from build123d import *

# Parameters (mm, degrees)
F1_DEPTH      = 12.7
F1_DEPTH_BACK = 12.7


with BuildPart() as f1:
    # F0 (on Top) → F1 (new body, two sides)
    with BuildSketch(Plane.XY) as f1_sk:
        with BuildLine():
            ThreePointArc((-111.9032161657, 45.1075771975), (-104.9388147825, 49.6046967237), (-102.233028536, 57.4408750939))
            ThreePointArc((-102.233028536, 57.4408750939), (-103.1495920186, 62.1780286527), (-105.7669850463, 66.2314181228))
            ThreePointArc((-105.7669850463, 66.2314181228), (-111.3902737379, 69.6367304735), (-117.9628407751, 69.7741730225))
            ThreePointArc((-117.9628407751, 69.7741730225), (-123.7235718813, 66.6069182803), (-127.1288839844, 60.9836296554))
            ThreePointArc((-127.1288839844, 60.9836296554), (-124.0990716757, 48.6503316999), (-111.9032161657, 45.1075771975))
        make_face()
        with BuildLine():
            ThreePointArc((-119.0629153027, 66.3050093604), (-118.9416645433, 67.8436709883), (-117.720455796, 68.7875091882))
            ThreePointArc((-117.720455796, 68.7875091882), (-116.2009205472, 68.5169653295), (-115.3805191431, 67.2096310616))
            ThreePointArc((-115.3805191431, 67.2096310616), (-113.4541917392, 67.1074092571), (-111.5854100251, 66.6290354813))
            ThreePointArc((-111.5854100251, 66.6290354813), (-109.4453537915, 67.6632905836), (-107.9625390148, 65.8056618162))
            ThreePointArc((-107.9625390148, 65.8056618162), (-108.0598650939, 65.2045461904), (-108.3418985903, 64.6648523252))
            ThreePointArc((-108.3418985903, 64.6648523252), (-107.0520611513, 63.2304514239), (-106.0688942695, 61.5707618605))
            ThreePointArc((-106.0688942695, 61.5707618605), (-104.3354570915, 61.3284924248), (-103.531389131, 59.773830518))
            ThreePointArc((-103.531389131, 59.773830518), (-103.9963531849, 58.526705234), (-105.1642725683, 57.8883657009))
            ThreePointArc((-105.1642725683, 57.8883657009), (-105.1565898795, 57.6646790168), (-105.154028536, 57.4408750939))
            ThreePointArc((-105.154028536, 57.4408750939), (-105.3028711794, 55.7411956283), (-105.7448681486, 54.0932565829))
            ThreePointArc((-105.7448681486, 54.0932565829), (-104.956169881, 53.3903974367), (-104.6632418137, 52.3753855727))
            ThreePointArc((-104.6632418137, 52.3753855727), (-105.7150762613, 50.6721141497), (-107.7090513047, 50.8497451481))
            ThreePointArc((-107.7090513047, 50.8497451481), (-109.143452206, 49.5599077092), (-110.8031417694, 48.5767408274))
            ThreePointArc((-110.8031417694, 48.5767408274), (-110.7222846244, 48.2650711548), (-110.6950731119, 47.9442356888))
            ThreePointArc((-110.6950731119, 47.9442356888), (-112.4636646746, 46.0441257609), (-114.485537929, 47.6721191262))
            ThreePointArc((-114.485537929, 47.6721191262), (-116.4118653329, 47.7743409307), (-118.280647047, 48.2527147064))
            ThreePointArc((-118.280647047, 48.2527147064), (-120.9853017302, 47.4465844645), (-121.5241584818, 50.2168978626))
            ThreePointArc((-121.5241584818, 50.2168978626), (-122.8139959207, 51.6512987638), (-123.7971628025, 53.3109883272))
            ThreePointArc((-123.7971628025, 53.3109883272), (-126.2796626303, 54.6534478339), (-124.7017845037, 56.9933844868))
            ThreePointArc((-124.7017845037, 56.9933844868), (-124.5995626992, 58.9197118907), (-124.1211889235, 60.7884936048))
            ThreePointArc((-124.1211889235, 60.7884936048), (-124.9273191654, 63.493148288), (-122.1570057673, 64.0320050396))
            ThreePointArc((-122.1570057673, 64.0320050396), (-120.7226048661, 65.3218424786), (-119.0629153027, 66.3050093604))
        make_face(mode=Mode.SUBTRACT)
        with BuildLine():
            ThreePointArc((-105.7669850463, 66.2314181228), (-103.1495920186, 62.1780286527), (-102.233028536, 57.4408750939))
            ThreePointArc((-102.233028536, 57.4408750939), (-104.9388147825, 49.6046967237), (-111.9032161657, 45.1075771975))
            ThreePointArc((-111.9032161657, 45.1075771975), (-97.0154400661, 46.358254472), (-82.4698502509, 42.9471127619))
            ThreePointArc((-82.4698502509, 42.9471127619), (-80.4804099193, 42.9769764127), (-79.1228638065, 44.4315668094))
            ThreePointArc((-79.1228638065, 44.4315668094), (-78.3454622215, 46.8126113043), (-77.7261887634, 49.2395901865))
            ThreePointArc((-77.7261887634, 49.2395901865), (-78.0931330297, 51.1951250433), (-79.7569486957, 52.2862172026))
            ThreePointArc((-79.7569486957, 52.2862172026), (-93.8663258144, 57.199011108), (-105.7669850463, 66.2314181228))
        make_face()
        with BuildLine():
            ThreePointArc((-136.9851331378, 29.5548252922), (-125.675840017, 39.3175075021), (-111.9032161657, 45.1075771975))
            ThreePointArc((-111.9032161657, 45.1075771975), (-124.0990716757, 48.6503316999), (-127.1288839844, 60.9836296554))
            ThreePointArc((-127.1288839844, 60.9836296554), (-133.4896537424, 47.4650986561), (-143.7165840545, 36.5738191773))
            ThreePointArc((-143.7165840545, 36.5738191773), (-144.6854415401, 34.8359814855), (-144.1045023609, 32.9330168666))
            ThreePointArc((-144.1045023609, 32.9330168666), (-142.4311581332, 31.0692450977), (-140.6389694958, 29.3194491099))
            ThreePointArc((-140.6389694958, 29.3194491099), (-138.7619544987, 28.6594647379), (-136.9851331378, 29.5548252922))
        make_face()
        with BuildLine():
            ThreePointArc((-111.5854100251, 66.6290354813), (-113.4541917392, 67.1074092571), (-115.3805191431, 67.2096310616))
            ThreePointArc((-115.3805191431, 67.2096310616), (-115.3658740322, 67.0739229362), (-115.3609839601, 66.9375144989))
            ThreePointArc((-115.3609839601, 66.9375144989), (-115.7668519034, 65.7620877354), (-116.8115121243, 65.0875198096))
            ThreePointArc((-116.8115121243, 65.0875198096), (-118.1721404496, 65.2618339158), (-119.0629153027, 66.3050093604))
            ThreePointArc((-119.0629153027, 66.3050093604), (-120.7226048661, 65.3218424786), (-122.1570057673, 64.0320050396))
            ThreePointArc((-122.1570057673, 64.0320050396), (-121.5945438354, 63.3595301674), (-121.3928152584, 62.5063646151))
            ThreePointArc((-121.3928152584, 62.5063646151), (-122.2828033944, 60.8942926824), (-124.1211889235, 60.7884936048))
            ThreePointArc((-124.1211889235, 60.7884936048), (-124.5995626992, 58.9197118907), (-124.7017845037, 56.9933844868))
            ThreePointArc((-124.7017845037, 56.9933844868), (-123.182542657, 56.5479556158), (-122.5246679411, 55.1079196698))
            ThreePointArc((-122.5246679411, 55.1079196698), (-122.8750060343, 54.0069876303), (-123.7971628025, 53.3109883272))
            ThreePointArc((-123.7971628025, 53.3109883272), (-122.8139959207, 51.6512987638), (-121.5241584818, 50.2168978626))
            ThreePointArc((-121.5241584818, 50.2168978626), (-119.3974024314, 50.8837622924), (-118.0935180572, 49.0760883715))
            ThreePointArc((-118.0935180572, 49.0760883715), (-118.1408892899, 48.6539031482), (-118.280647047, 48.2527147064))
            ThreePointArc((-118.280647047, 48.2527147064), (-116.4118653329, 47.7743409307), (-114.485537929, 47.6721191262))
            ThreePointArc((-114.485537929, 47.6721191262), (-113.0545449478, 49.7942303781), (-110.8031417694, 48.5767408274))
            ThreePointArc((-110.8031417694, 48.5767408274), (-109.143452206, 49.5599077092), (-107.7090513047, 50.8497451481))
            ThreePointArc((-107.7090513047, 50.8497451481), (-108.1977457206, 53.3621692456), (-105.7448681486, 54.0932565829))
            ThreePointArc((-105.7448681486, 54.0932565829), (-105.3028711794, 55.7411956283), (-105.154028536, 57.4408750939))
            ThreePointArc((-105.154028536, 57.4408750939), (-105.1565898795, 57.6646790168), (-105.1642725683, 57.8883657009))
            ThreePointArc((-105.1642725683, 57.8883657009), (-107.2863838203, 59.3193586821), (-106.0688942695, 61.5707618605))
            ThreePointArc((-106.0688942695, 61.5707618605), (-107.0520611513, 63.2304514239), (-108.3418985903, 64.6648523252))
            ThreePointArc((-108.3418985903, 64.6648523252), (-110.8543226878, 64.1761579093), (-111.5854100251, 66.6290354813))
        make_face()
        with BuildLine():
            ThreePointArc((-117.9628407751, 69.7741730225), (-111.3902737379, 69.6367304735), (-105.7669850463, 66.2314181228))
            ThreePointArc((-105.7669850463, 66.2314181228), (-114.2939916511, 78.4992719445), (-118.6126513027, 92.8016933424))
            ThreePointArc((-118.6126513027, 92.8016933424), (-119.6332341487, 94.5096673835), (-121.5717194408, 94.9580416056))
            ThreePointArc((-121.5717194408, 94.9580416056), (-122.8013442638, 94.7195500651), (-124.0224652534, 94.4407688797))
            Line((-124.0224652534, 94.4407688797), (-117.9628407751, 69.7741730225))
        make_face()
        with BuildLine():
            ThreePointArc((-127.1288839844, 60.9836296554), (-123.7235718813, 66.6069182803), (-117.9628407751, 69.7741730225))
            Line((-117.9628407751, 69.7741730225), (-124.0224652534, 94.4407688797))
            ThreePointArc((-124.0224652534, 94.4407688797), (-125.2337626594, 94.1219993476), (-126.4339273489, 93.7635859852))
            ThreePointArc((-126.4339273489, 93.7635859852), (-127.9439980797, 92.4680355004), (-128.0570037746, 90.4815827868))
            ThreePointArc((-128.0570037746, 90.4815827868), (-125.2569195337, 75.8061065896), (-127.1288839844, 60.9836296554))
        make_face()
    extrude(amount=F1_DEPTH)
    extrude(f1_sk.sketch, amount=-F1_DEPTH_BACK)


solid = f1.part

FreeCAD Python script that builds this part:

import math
import FreeCAD as App
import Part
import Sketcher
Q = App.Units.Quantity

doc = App.newDocument("Part")
body = doc.addObject("PartDesign::Body", "Body")

sketch1 = body.newObject("Sketcher::SketchObject", "Sketch")
sketch1.AttachmentSupport = (doc.getObject("XY_Plane"), [""])
sketch1.MapMode = "FlatFace"
sketch1.addGeometry([
    Part.ArcOfCircle(Part.Circle(App.Vector(-100.51, -1.27, 0), App.Vector(0, 0, 1), 47.75), math.radians(68), math.radians(104)),
    Part.ArcOfCircle(Part.Circle(App.Vector(-81.51, 45.3, 0), App.Vector(0, 0, 1), 2.54), math.radians(-112), math.radians(-20)),
    Part.ArcOfCircle(Part.Circle(App.Vector(-114.93, 57.44, 0), App.Vector(0, 0, 1), 38.1), math.radians(-19.97), math.radians(-12.43)),
    Part.ArcOfCircle(Part.Circle(App.Vector(-80.21, 49.79, 0), App.Vector(0, 0, 1), 2.54), math.radians(-12), math.radians(80)),
    Part.ArcOfCircle(Part.Circle(App.Vector(-71.3, 99.28, 0), App.Vector(0, 0, 1), 47.75), math.radians(-136), math.radians(-100)),
    Part.ArcOfCircle(Part.Circle(App.Vector(-71.3, 99.28, 0), App.Vector(0, 0, 1), 47.75), math.radians(-172), math.radians(-136)),
    Part.ArcOfCircle(Part.Circle(App.Vector(-121.13, 92.46, 0), App.Vector(0, 0, 1), 2.54), math.radians(8), math.radians(100)),
    Part.ArcOfCircle(Part.Circle(App.Vector(-114.93, 57.44, 0), App.Vector(0, 0, 1), 38.1), math.radians(100.03), math.radians(103.8)),
    Part.ArcOfCircle(Part.Circle(App.Vector(-114.93, 57.44, 0), App.Vector(0, 0, 1), 38.1), math.radians(103.8), math.radians(107.57)),
    Part.ArcOfCircle(Part.Circle(App.Vector(-125.67, 91.34, 0), App.Vector(0, 0, 1), 2.54), math.radians(108), math.radians(200)),
    Part.ArcOfCircle(Part.Circle(App.Vector(-172.99, 74.3, 0), App.Vector(0, 0, 1), 47.75), math.radians(-16), math.radians(20)),
    Part.ArcOfCircle(Part.Circle(App.Vector(-172.99, 74.3, 0), App.Vector(0, 0, 1), 47.75), math.radians(-52), math.radians(-16)),
    Part.ArcOfCircle(Part.Circle(App.Vector(-142.16, 34.57, 0), App.Vector(0, 0, 1), 2.54), math.radians(128), math.radians(220)),
    Part.ArcOfCircle(Part.Circle(App.Vector(-114.93, 57.44, 0), App.Vector(0, 0, 1), 38.1), math.radians(-139.97), math.radians(-132.43)),
    Part.ArcOfCircle(Part.Circle(App.Vector(-138.93, 31.19, 0), App.Vector(0, 0, 1), 2.54), math.radians(-132), math.radians(-40)),
    Part.ArcOfCircle(Part.Circle(App.Vector(-100.51, -1.27, 0), App.Vector(0, 0, 1), 47.75), math.radians(104), math.radians(140)),
    Part.ArcOfCircle(Part.Circle(App.Vector(-117.27, 66.94, 0), App.Vector(0, 0, 1), 1.91), math.radians(104), math.radians(199)),
    Part.ArcOfCircle(Part.Circle(App.Vector(-117.27, 66.94, 0), App.Vector(0, 0, 1), 1.91), math.radians(8), math.radians(104)),
    Part.ArcOfCircle(Part.Circle(App.Vector(-117.27, 66.94, 0), App.Vector(0, 0, 1), 1.91), math.radians(0), math.radians(8.21)),
    Part.ArcOfCircle(Part.Circle(App.Vector(-117.27, 66.94, 0), App.Vector(0, 0, 1), 1.91), math.radians(-76), math.radians(0)),
    Part.ArcOfCircle(Part.Circle(App.Vector(-117.27, 66.94, 0), App.Vector(0, 0, 1), 1.91), math.radians(-161), math.radians(-76)),
    Part.ArcOfCircle(Part.Circle(App.Vector(-109.87, 65.81, 0), App.Vector(0, 0, 1), 1.91), math.radians(0), math.radians(154)),
    Part.ArcOfCircle(Part.Circle(App.Vector(-109.87, 65.81, 0), App.Vector(0, 0, 1), 1.91), math.radians(-37), math.radians(0)),
    Part.ArcOfCircle(Part.Circle(App.Vector(-109.87, 65.81, 0), App.Vector(0, 0, 1), 1.91), math.radians(154), math.radians(323)),
    Part.ArcOfCircle(Part.Circle(App.Vector(-105.44, 59.77, 0), App.Vector(0, 0, 1), 1.91), math.radians(0), math.radians(109)),
    Part.ArcOfCircle(Part.Circle(App.Vector(-105.44, 59.77, 0), App.Vector(0, 0, 1), 1.91), math.radians(-82), math.radians(0)),
    Part.ArcOfCircle(Part.Circle(App.Vector(-105.44, 59.77, 0), App.Vector(0, 0, 1), 1.91), math.radians(109), math.radians(278)),
    Part.ArcOfCircle(Part.Circle(App.Vector(-106.57, 52.38, 0), App.Vector(0, 0, 1), 1.91), math.radians(0), math.radians(64)),
    Part.ArcOfCircle(Part.Circle(App.Vector(-106.57, 52.38, 0), App.Vector(0, 0, 1), 1.91), math.radians(-127), math.radians(0)),
    Part.ArcOfCircle(Part.Circle(App.Vector(-106.57, 52.38, 0), App.Vector(0, 0, 1), 1.91), math.radians(64), math.radians(233)),
    Part.ArcOfCircle(Part.Circle(App.Vector(-112.6, 47.94, 0), App.Vector(0, 0, 1), 1.91), math.radians(0), math.radians(19.39)),
    Part.ArcOfCircle(Part.Circle(App.Vector(-112.6, 47.94, 0), App.Vector(0, 0, 1), 1.91), math.radians(-172), math.radians(0)),
    Part.ArcOfCircle(Part.Circle(App.Vector(-112.6, 47.94, 0), App.Vector(0, 0, 1), 1.91), math.radians(19), math.radians(188)),
    Part.ArcOfCircle(Part.Circle(App.Vector(-120, 49.08, 0), App.Vector(0, 0, 1), 1.91), math.radians(143), math.radians(334)),
    Part.ArcOfCircle(Part.Circle(App.Vector(-120, 49.08, 0), App.Vector(0, 0, 1), 1.91), math.radians(0), math.radians(143)),
    Part.ArcOfCircle(Part.Circle(App.Vector(-120, 49.08, 0), App.Vector(0, 0, 1), 1.91), math.radians(-26), math.radians(0)),
    Part.ArcOfCircle(Part.Circle(App.Vector(-124.43, 55.11, 0), App.Vector(0, 0, 1), 1.91), math.radians(98), math.radians(289)),
    Part.ArcOfCircle(Part.Circle(App.Vector(-124.43, 55.11, 0), App.Vector(0, 0, 1), 1.91), math.radians(0), math.radians(98)),
    Part.ArcOfCircle(Part.Circle(App.Vector(-124.43, 55.11, 0), App.Vector(0, 0, 1), 1.91), math.radians(-71), math.radians(0)),
    Part.ArcOfCircle(Part.Circle(App.Vector(-123.3, 62.51, 0), App.Vector(0, 0, 1), 1.91), math.radians(53), math.radians(244)),
    Part.ArcOfCircle(Part.Circle(App.Vector(-123.3, 62.51, 0), App.Vector(0, 0, 1), 1.91), math.radians(0), math.radians(53)),
    Part.ArcOfCircle(Part.Circle(App.Vector(-123.3, 62.51, 0), App.Vector(0, 0, 1), 1.91), math.radians(-116), math.radians(0)),
], False)
sketch1.addConstraint([
    Sketcher.Constraint("Tangent", 0, 1, 1, 1),
    Sketcher.Constraint("Tangent", 1, 2, 2, 1),
    Sketcher.Constraint("Tangent", 2, 2, 3, 1),
    Sketcher.Constraint("Tangent", 3, 2, 4, 2),
    Sketcher.Constraint("Tangent", 4, 1, 5, 2),
    Sketcher.Constraint("Tangent", 5, 1, 6, 1),
    Sketcher.Constraint("Tangent", 6, 2, 7, 1),
    Sketcher.Constraint("Tangent", 7, 2, 8, 1),
    Sketcher.Constraint("Tangent", 8, 2, 9, 1),
    Sketcher.Constraint("Tangent", 9, 2, 10, 2),
    Sketcher.Constraint("Tangent", 10, 1, 11, 2),
    Sketcher.Constraint("Tangent", 11, 1, 12, 1),
    Sketcher.Constraint("Tangent", 12, 2, 13, 1),
    Sketcher.Constraint("Tangent", 13, 2, 14, 1),
    Sketcher.Constraint("Tangent", 14, 2, 15, 2),
    Sketcher.Constraint("Tangent", 15, 1, 0, 2),
    Sketcher.Constraint("Tangent", 16, 1, 17, 2),
    Sketcher.Constraint("Tangent", 17, 1, 18, 2),
    Sketcher.Constraint("Tangent", 18, 1, 19, 2),
    Sketcher.Constraint("Tangent", 19, 1, 20, 2),
    Sketcher.Constraint("Tangent", 20, 1, 16, 2),
    Sketcher.Constraint("Tangent", 21, 1, 22, 2),
    Sketcher.Constraint("Tangent", 22, 1, 23, 2),
    Sketcher.Constraint("Tangent", 23, 1, 21, 2),
    Sketcher.Constraint("Tangent", 24, 1, 25, 2),
    Sketcher.Constraint("Tangent", 25, 1, 26, 2),
    Sketcher.Constraint("Tangent", 26, 1, 24, 2),
    Sketcher.Constraint("Tangent", 27, 1, 28, 2),
    Sketcher.Constraint("Tangent", 28, 1, 29, 2),
    Sketcher.Constraint("Tangent", 29, 1, 27, 2),
    Sketcher.Constraint("Tangent", 30, 1, 31, 2),
    Sketcher.Constraint("Tangent", 31, 1, 32, 2),
    Sketcher.Constraint("Tangent", 32, 1, 30, 2),
    Sketcher.Constraint("Tangent", 33, 1, 34, 2),
    Sketcher.Constraint("Tangent", 34, 1, 35, 2),
    Sketcher.Constraint("Tangent", 35, 1, 33, 2),
    Sketcher.Constraint("Tangent", 36, 1, 37, 2),
    Sketcher.Constraint("Tangent", 37, 1, 38, 2),
    Sketcher.Constraint("Tangent", 38, 1, 36, 2),
    Sketcher.Constraint("Tangent", 39, 1, 40, 2),
    Sketcher.Constraint("Tangent", 40, 1, 41, 2),
    Sketcher.Constraint("Tangent", 41, 1, 39, 2),
    Sketcher.Constraint("Coincident", 7, 3, 2, 3),
    Sketcher.Constraint("Coincident", 13, 3, 2, 3),
    Sketcher.Constraint("Coincident", 18, 3, 16, 3),
    Sketcher.Constraint("Equal", 1, 3),
    Sketcher.Constraint("Equal", 0, 4),
    Sketcher.Constraint("Equal", 4, 5),
    Sketcher.Constraint("Equal", 3, 6),
    Sketcher.Constraint("Equal", 2, 7),
    Sketcher.Constraint("Equal", 7, 8),
    Sketcher.Constraint("Equal", 6, 9),
    Sketcher.Constraint("Equal", 5, 10),
    Sketcher.Constraint("Equal", 10, 11),
    Sketcher.Constraint("Equal", 9, 12),
    Sketcher.Constraint("Equal", 8, 13),
    Sketcher.Constraint("Equal", 12, 14),
    Sketcher.Constraint("Equal", 11, 15),
    Sketcher.Constraint("Equal", 20, 21),
    Sketcher.Constraint("Equal", 23, 24),
    Sketcher.Constraint("Equal", 26, 27),
    Sketcher.Constraint("Equal", 29, 30),
    Sketcher.Constraint("Equal", 32, 33),
    Sketcher.Constraint("Equal", 35, 36),
    Sketcher.Constraint("Equal", 38, 39),
    Sketcher.Constraint("Horizontal", 20, 3, 18, 1),
    Sketcher.Constraint("Horizontal", 23, 3, 21, 1),
    Sketcher.Constraint("Horizontal", 26, 3, 24, 1),
    Sketcher.Constraint("Horizontal", 29, 3, 27, 1),
    Sketcher.Constraint("Horizontal", 32, 3, 30, 1),
    Sketcher.Constraint("Horizontal", 35, 3, 34, 1),
    Sketcher.Constraint("Horizontal", 38, 3, 37, 1),
    Sketcher.Constraint("Horizontal", 41, 3, 40, 1),
    Sketcher.Constraint("Radius", 1, Q("0.1 in")),
    Sketcher.Constraint("Radius", 2, Q("1.5 in")),
    Sketcher.Constraint("Radius", 0, Q("1.88 in")),
    Sketcher.Constraint("Radius", 16, Q("0.075 in")),
    Sketcher.Constraint("DistanceX", 27, 3, -1, 1, Q("4.1956001 in")),
    Sketcher.Constraint("DistanceX", 9, 3, -1, 1, 125.667201),
    Sketcher.Constraint("DistanceX", 10, 3, -1, 1, 172.9853),
    Sketcher.Constraint("DistanceX", 22, 1, -1, 1, 108.341899),
    Sketcher.Constraint("DistanceX", 1, 3, -1, 1, 81.510208),
    Sketcher.Constraint("DistanceX", 2, 3, -1, 1, 114.933029),
    Sketcher.Constraint("DistanceY", -1, 1, 4, 3, 99.283861),
    Sketcher.Constraint("DistanceX", 6, 3, -1, 1, 121.12914),
    Sketcher.Constraint("DistanceY", -1, 1, 9, 3, 91.342072),
    Sketcher.Constraint("DistanceX", 14, 3, -1, 1, 138.92524),
    Sketcher.Constraint("DistanceX", 21, 3, -1, 1, 109.867539),
    Sketcher.Constraint("DistanceY", -1, 1, 21, 3, 65.805662),
    Sketcher.Constraint("DistanceX", 24, 3, -1, 1, 105.436389),
    Sketcher.Constraint("DistanceY", -1, 1, 24, 3, 59.773831),
    Sketcher.Constraint("DistanceX", 33, 3, -1, 1, 119.998518),
    Sketcher.Constraint("DistanceY", -1, 1, 33, 3, 49.076088),
    Sketcher.Constraint("DistanceY", -1, 1, 36, 3, 55.10792),
    Sketcher.Constraint("DistanceY", -1, 1, 4, 1, 66.231418),
    Sketcher.Constraint("DistanceY", -1, 1, 7, 2, 94.440769),
    Sketcher.Constraint("DistanceY", -1, 1, 10, 1, 60.98363),
    Sketcher.Constraint("DistanceY", -1, 1, 16, 1, 68.787509),
    Sketcher.Constraint("DistanceX", 17, 1, -1, 1, 115.380519),
    Sketcher.Constraint("DistanceY", -1, 1, 17, 1, 67.209631),
    Sketcher.Constraint("DistanceY", -1, 1, 19, 1, 65.08752),
    Sketcher.Constraint("DistanceY", -1, 1, 20, 1, 66.305009),
    Sketcher.Constraint("DistanceX", 23, 1, -1, 1, 111.58541),
    Sketcher.Constraint("DistanceY", -1, 1, 26, 1, 61.570762),
    Sketcher.Constraint("DistanceX", 28, 1, -1, 1, 107.709051),
    Sketcher.Constraint("DistanceX", 29, 1, -1, 1, 105.744868),
    Sketcher.Constraint("DistanceY", -1, 1, 31, 1, 47.672119),
    Sketcher.Constraint("DistanceX", 32, 1, -1, 1, 110.803142),
    Sketcher.Constraint("DistanceY", -1, 1, 32, 1, 48.576741),
    Sketcher.Constraint("DistanceX", 33, 1, -1, 1, 121.524158),
    Sketcher.Constraint("DistanceY", -1, 1, 38, 1, 53.310988),
    Sketcher.Constraint("DistanceX", 41, 1, -1, 1, 124.121189),
    Sketcher.Constraint("DistanceX", 16, 3, -1, 1, 117.265984),
    Sketcher.Constraint("DistanceY", -1, 1, 27, 3, 52.375386),
    Sketcher.Constraint("DistanceX", 30, 3, -1, 1, 112.600073),
    Sketcher.Constraint("DistanceX", 36, 3, -1, 1, 124.429668),
    Sketcher.Constraint("DistanceX", 39, 3, -1, 1, 123.297815),
    Sketcher.Constraint("DistanceY", -1, 1, 39, 3, 62.506365),
    Sketcher.Constraint("DistanceX", 15, 1, -1, 1, 111.903216),
    Sketcher.Constraint("DistanceX", 25, 1, -1, 1, 105.164273),
    Sketcher.Constraint("DistanceX", 35, 1, -1, 1, 118.280647),
    Sketcher.Constraint("DistanceX", 36, 1, -1, 1, 124.701785),
    Sketcher.Constraint("DistanceX", 39, 1, -1, 1, 122.157006),
])
pad1 = body.newObject("PartDesign::Pad", "Pad")
pad1.Profile = sketch1
pad1.Type = "TwoLengths"
pad1.Length = Q("0.5 in")
pad1.Length2 = Q("0.5 in")

doc.recompute()
